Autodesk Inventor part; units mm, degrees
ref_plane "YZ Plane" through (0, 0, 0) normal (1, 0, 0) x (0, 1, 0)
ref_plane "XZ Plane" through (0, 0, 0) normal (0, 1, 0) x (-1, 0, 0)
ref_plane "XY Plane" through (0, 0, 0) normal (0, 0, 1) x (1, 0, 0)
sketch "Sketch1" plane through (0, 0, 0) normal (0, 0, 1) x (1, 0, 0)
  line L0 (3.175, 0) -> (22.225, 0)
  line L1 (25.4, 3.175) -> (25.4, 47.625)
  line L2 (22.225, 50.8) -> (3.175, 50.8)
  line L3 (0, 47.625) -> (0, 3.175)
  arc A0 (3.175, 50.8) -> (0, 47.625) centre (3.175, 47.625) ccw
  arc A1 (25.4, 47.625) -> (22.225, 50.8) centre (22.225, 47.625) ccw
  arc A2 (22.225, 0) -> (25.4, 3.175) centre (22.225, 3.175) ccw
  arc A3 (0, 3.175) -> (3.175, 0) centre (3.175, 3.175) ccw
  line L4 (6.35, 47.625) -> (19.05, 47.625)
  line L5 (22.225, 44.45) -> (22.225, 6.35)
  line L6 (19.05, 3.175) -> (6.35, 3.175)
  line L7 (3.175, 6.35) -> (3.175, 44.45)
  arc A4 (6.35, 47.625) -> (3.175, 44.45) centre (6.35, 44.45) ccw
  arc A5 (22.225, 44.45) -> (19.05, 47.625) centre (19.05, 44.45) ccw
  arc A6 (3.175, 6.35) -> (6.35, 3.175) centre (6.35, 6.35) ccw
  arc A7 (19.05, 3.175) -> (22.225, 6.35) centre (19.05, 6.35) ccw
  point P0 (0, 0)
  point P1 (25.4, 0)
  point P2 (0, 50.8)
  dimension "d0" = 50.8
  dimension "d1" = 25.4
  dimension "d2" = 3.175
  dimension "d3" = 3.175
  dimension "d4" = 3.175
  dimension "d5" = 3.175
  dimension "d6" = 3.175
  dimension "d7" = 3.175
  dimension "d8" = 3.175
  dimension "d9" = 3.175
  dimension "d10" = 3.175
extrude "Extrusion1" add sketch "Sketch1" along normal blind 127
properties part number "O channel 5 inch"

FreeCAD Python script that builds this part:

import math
import FreeCAD as App
import Part
import Sketcher
Q = App.Units.Quantity

doc = App.newDocument("Part")
body = doc.addObject("PartDesign::Body", "Body")

# Sketch on XY plane
sketch1 = body.newObject("Sketcher::SketchObject", "Sketch")
sketch1.AttachmentSupport = (doc.getObject("XY_Plane"), [""])
sketch1.MapMode = "FlatFace"
sketch1.addGeometry([
    Part.ArcOfCircle(Part.Circle(App.Vector(3.2, 3.2, 0), App.Vector(0, 0, 1), 3.2), math.radians(180), math.radians(270)),  # 0
    Part.LineSegment(App.Vector(3.2, 0, 0), App.Vector(22.2, 0, 0)),  # 1
    Part.ArcOfCircle(Part.Circle(App.Vector(22.2, 3.2, 0), App.Vector(0, 0, 1), 3.2), math.radians(-90), math.radians(0)),  # 2
    Part.LineSegment(App.Vector(25.4, 3.2, 0), App.Vector(25.4, 47.6, 0)),  # 3
    Part.ArcOfCircle(Part.Circle(App.Vector(22.2, 47.6, 0), App.Vector(0, 0, 1), 3.2), math.radians(0), math.radians(90)),  # 4
    Part.LineSegment(App.Vector(22.2, 50.8, 0), App.Vector(3.2, 50.8, 0)),  # 5
    Part.ArcOfCircle(Part.Circle(App.Vector(3.2, 47.6, 0), App.Vector(0, 0, 1), 3.2), math.radians(90), math.radians(180)),  # 6
    Part.LineSegment(App.Vector(0, 47.6, 0), App.Vector(0, 3.2, 0)),  # 7
    Part.ArcOfCircle(Part.Circle(App.Vector(6.3, 44.5, 0), App.Vector(0, 0, 1), 3.2), math.radians(90), math.radians(180)),  # 8
    Part.LineSegment(App.Vector(6.3, 47.6, 0), App.Vector(19.1, 47.6, 0)),  # 9
    Part.ArcOfCircle(Part.Circle(App.Vector(19.1, 44.5, 0), App.Vector(0, 0, 1), 3.2), math.radians(0), math.radians(90)),  # 10
    Part.LineSegment(App.Vector(22.2, 44.5, 0), App.Vector(22.2, 6.3, 0)),  # 11
    Part.ArcOfCircle(Part.Circle(App.Vector(19.1, 6.3, 0), App.Vector(0, 0, 1), 3.2), math.radians(-90), math.radians(0)),  # 12
    Part.LineSegment(App.Vector(19.1, 3.2, 0), App.Vector(6.3, 3.2, 0)),  # 13
    Part.ArcOfCircle(Part.Circle(App.Vector(6.3, 6.3, 0), App.Vector(0, 0, 1), 3.2), math.radians(180), math.radians(270)),  # 14
    Part.LineSegment(App.Vector(3.2, 6.3, 0), App.Vector(3.2, 44.5, 0)),  # 15
], False)
sketch1.addConstraint([
    Sketcher.Constraint("Tangent", 0, 2, 1, 1),
    Sketcher.Constraint("Tangent", 1, 2, 2, 1),
    Sketcher.Constraint("Tangent", 2, 2, 3, 1),
    Sketcher.Constraint("Tangent", 3, 2, 4, 1),
    Sketcher.Constraint("Tangent", 4, 2, 5, 1),
    Sketcher.Constraint("Tangent", 5, 2, 6, 1),
    Sketcher.Constraint("Tangent", 6, 2, 7, 1),
    Sketcher.Constraint("Tangent", 7, 2, 0, 1),
    Sketcher.Constraint("Tangent", 8, 1, 9, 1),
    Sketcher.Constraint("Tangent", 9, 2, 10, 2),
    Sketcher.Constraint("Tangent", 10, 1, 11, 1),
    Sketcher.Constraint("Tangent", 11, 2, 12, 2),
    Sketcher.Constraint("Tangent", 12, 1, 13, 1),
    Sketcher.Constraint("Tangent", 13, 2, 14, 2),
    Sketcher.Constraint("Tangent", 14, 1, 15, 1),
    Sketcher.Constraint("Tangent", 15, 2, 8, 2),
    Sketcher.Constraint("Horizontal", 1),
    Sketcher.Constraint("Vertical", 3),
    Sketcher.Constraint("Horizontal", 5),
    Sketcher.Constraint("Vertical", 7),
    Sketcher.Constraint("Horizontal", 9),
    Sketcher.Constraint("Vertical", 11),
    Sketcher.Constraint("Horizontal", 13),
    Sketcher.Constraint("Vertical", 15),
    Sketcher.Constraint("Equal", 0, 2),
    Sketcher.Constraint("Equal", 2, 4),
    Sketcher.Constraint("Equal", 4, 6),
    Sketcher.Constraint("Equal", 6, 8),
    Sketcher.Constraint("Equal", 8, 10),
    Sketcher.Constraint("Equal", 10, 12),
    Sketcher.Constraint("Equal", 12, 14),
    Sketcher.Constraint("PointOnObject", 0, 2, -1),
    Sketcher.Constraint("PointOnObject", 6, 2, -2),
    Sketcher.Constraint("Horizontal", 6, 2, 8, 1),
    Sketcher.Constraint("Horizontal", 7, 2, 12, 1),
    Sketcher.Constraint("Vertical", 4, 2, 10, 1),
    Sketcher.Constraint("Vertical", 5, 2, 14, 1),
    Sketcher.Constraint("DistanceX", -1, 1, 2, 2, Q("1 in")),
    Sketcher.Constraint("DistanceY", -1, 1, 4, 2, Q("2 in")),
    Sketcher.Constraint("Radius", 0, Q("0.125 in")),
])
pad1 = body.newObject("PartDesign::Pad", "Pad")
pad1.Profile = sketch1
pad1.Length = Q("5 in")

doc.recompute()
